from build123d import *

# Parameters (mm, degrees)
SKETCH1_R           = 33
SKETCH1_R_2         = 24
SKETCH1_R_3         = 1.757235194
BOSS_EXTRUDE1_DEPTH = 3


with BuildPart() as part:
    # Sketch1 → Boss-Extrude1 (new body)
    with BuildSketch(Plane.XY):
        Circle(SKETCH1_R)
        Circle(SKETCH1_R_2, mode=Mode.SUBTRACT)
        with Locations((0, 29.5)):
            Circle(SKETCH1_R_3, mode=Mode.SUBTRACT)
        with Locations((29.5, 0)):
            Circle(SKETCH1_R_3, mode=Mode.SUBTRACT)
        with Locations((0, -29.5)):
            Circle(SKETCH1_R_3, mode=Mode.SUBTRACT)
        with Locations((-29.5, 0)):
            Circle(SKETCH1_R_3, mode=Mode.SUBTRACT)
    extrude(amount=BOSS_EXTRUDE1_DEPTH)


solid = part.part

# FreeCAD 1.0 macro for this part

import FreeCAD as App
import Part
import Sketcher
from FreeCAD import Vector
Q = App.Units.Quantity

doc = App.newDocument("Part")
body = doc.addObject("PartDesign::Body", "Body")

sketch1 = body.newObject("Sketcher::SketchObject", "Sketch")
sketch1.AttachmentSupport = (doc.getObject("XY_Plane"), [""])
sketch1.MapMode = "FlatFace"
sketch1.addGeometry([
    Part.Circle(Vector(0, 0, 0), Vector(0, 0, 1), 33),
    Part.Circle(Vector(0, -29.5, 0), Vector(0, 0, 1), 1.757235),
    Part.Circle(Vector(-29.5, 0, 0), Vector(0, 0, 1), 1.757235),
    Part.Circle(Vector(0, 0, 0), Vector(0, 0, 1), 24),
    Part.Circle(Vector(29.5, 0, 0), Vector(0, 0, 1), 1.757235),
    Part.Circle(Vector(0, 29.5, 0), Vector(0, 0, 1), 1.757235),
], False)
sketch1.addConstraint([
    Sketcher.Constraint("Coincident", 0, 3, -1, 1),
    Sketcher.Constraint("Coincident", 3, 3, -1, 1),
    Sketcher.Constraint("Equal", 1, 2),
    Sketcher.Constraint("Equal", 2, 4),
    Sketcher.Constraint("Equal", 4, 5),
    Sketcher.Constraint("Symmetric", 2, 3, 4, 3, -1, 1),
    Sketcher.Constraint("Symmetric", 1, 3, 5, 3, -1, 1),
    Sketcher.Constraint("PointOnObject", 1, 3, -2),
    Sketcher.Constraint("PointOnObject", 2, 3, -1),
    Sketcher.Constraint("Diameter", 0, Q("66 mm")),
    Sketcher.Constraint("Diameter", 3, Q("48 mm")),
    Sketcher.Constraint("DistanceX", 2, 3, 4, 3, Q("59 mm")),
    Sketcher.Constraint("DistanceY", 1, 3, 5, 3, Q("59 mm")),
    Sketcher.Constraint("Diameter", 1, Q("3.51447 mm")),
])
pad1 = body.newObject("PartDesign::Pad", "Pad")
pad1.Profile = sketch1
pad1.Length = 3

doc.recompute()
